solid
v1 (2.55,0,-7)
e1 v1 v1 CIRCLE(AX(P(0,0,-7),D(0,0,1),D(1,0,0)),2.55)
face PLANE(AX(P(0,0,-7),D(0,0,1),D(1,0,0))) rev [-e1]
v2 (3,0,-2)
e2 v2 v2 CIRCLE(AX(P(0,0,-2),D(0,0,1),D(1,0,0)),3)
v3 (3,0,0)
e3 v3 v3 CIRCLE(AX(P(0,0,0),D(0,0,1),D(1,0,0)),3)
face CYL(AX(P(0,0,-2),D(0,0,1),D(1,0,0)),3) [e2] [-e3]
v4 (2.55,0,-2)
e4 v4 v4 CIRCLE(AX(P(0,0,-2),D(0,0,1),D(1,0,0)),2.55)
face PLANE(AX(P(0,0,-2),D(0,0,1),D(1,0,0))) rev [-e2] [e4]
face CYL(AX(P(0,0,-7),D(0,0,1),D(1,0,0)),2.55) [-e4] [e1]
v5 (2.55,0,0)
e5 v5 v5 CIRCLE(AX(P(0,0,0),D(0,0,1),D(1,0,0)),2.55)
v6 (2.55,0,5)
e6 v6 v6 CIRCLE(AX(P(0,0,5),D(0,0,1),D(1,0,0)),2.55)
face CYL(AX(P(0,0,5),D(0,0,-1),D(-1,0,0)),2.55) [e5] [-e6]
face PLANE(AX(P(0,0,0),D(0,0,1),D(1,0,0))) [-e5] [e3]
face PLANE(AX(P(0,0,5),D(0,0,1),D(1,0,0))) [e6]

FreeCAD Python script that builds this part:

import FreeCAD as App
import Part
import Sketcher
from FreeCAD import Vector

doc = App.newDocument("Part")
params = doc.addObject("Spreadsheet::Sheet", "Params")
for row, (alias, value) in enumerate([
    ("sketch1_diameter", "5.1 mm"),
    ("pad1_length", "5 mm"),
    ("sketch2_diameter", "6 mm"),
    ("pad2_length", "2 mm"),
    ("sketch3_diameter", "5.1 mm"),
    ("pad3_length", "5 mm"),
], start=1):
    params.set(f"A{row}", alias)
    params.set(f"B{row}", "=" + value)
    params.setAlias(f"B{row}", alias)

body = doc.addObject("PartDesign::Body", "Body")

# Sketch on XY plane
sketch1 = doc.addObject("Sketcher::SketchObject", "Sketch")
body.addObject(sketch1)
sketch1.AttachmentSupport = (doc.XY_Plane, [""])
sketch1.MapMode = "FlatFace"
sketch1.addGeometry(Part.Circle(Vector(0, 0, 0), Vector(0, 0, 1), 2.5), False)
sketch1.addConstraint(Sketcher.Constraint("Coincident", 0, 3, -1, 1))
sketch1.addConstraint(Sketcher.Constraint("Diameter", 0, 5.1))
sketch1.setExpression("Constraints[1]", "Params.sketch1_diameter")
pad1 = doc.addObject("PartDesign::Pad", "Pad")
body.addObject(pad1)
pad1.Profile = sketch1
pad1.setExpression("Length", "Params.pad1_length")

# Sketch on XY plane
sketch2 = doc.addObject("Sketcher::SketchObject", "Sketch001")
body.addObject(sketch2)
sketch2.AttachmentSupport = (doc.XY_Plane, [""])
sketch2.MapMode = "FlatFace"
sketch2.addGeometry(Part.Circle(Vector(0, 0, 0), Vector(0, 0, 1), 3), False)
sketch2.addConstraint(Sketcher.Constraint("Coincident", 0, 3, -1, 1))
sketch2.addConstraint(Sketcher.Constraint("Diameter", 0, 6.0))
sketch2.setExpression("Constraints[1]", "Params.sketch2_diameter")
pad2 = doc.addObject("PartDesign::Pad", "Pad001")
body.addObject(pad2)
pad2.Profile = sketch2
pad2.setExpression("Length", "Params.pad2_length")
pad2.Reversed = True

# Sketch on XY plane
sketch3 = doc.addObject("Sketcher::SketchObject", "Sketch002")
body.addObject(sketch3)
sketch3.AttachmentSupport = (doc.XY_Plane, [""])
sketch3.MapMode = "FlatFace"
sketch3.AttachmentOffset = App.Placement(Vector(0, 0, -7), App.Rotation())
sketch3.addGeometry(Part.Circle(Vector(0, 0, 0), Vector(0, 0, 1), 2.5), False)
sketch3.addConstraint(Sketcher.Constraint("Coincident", 0, 3, -1, 1))
sketch3.addConstraint(Sketcher.Constraint("Diameter", 0, 5.1))
sketch3.setExpression("Constraints[1]", "Params.sketch3_diameter")
pad3 = doc.addObject("PartDesign::Pad", "Pad002")
body.addObject(pad3)
pad3.Profile = sketch3
pad3.setExpression("Length", "Params.pad3_length")

doc.recompute()
